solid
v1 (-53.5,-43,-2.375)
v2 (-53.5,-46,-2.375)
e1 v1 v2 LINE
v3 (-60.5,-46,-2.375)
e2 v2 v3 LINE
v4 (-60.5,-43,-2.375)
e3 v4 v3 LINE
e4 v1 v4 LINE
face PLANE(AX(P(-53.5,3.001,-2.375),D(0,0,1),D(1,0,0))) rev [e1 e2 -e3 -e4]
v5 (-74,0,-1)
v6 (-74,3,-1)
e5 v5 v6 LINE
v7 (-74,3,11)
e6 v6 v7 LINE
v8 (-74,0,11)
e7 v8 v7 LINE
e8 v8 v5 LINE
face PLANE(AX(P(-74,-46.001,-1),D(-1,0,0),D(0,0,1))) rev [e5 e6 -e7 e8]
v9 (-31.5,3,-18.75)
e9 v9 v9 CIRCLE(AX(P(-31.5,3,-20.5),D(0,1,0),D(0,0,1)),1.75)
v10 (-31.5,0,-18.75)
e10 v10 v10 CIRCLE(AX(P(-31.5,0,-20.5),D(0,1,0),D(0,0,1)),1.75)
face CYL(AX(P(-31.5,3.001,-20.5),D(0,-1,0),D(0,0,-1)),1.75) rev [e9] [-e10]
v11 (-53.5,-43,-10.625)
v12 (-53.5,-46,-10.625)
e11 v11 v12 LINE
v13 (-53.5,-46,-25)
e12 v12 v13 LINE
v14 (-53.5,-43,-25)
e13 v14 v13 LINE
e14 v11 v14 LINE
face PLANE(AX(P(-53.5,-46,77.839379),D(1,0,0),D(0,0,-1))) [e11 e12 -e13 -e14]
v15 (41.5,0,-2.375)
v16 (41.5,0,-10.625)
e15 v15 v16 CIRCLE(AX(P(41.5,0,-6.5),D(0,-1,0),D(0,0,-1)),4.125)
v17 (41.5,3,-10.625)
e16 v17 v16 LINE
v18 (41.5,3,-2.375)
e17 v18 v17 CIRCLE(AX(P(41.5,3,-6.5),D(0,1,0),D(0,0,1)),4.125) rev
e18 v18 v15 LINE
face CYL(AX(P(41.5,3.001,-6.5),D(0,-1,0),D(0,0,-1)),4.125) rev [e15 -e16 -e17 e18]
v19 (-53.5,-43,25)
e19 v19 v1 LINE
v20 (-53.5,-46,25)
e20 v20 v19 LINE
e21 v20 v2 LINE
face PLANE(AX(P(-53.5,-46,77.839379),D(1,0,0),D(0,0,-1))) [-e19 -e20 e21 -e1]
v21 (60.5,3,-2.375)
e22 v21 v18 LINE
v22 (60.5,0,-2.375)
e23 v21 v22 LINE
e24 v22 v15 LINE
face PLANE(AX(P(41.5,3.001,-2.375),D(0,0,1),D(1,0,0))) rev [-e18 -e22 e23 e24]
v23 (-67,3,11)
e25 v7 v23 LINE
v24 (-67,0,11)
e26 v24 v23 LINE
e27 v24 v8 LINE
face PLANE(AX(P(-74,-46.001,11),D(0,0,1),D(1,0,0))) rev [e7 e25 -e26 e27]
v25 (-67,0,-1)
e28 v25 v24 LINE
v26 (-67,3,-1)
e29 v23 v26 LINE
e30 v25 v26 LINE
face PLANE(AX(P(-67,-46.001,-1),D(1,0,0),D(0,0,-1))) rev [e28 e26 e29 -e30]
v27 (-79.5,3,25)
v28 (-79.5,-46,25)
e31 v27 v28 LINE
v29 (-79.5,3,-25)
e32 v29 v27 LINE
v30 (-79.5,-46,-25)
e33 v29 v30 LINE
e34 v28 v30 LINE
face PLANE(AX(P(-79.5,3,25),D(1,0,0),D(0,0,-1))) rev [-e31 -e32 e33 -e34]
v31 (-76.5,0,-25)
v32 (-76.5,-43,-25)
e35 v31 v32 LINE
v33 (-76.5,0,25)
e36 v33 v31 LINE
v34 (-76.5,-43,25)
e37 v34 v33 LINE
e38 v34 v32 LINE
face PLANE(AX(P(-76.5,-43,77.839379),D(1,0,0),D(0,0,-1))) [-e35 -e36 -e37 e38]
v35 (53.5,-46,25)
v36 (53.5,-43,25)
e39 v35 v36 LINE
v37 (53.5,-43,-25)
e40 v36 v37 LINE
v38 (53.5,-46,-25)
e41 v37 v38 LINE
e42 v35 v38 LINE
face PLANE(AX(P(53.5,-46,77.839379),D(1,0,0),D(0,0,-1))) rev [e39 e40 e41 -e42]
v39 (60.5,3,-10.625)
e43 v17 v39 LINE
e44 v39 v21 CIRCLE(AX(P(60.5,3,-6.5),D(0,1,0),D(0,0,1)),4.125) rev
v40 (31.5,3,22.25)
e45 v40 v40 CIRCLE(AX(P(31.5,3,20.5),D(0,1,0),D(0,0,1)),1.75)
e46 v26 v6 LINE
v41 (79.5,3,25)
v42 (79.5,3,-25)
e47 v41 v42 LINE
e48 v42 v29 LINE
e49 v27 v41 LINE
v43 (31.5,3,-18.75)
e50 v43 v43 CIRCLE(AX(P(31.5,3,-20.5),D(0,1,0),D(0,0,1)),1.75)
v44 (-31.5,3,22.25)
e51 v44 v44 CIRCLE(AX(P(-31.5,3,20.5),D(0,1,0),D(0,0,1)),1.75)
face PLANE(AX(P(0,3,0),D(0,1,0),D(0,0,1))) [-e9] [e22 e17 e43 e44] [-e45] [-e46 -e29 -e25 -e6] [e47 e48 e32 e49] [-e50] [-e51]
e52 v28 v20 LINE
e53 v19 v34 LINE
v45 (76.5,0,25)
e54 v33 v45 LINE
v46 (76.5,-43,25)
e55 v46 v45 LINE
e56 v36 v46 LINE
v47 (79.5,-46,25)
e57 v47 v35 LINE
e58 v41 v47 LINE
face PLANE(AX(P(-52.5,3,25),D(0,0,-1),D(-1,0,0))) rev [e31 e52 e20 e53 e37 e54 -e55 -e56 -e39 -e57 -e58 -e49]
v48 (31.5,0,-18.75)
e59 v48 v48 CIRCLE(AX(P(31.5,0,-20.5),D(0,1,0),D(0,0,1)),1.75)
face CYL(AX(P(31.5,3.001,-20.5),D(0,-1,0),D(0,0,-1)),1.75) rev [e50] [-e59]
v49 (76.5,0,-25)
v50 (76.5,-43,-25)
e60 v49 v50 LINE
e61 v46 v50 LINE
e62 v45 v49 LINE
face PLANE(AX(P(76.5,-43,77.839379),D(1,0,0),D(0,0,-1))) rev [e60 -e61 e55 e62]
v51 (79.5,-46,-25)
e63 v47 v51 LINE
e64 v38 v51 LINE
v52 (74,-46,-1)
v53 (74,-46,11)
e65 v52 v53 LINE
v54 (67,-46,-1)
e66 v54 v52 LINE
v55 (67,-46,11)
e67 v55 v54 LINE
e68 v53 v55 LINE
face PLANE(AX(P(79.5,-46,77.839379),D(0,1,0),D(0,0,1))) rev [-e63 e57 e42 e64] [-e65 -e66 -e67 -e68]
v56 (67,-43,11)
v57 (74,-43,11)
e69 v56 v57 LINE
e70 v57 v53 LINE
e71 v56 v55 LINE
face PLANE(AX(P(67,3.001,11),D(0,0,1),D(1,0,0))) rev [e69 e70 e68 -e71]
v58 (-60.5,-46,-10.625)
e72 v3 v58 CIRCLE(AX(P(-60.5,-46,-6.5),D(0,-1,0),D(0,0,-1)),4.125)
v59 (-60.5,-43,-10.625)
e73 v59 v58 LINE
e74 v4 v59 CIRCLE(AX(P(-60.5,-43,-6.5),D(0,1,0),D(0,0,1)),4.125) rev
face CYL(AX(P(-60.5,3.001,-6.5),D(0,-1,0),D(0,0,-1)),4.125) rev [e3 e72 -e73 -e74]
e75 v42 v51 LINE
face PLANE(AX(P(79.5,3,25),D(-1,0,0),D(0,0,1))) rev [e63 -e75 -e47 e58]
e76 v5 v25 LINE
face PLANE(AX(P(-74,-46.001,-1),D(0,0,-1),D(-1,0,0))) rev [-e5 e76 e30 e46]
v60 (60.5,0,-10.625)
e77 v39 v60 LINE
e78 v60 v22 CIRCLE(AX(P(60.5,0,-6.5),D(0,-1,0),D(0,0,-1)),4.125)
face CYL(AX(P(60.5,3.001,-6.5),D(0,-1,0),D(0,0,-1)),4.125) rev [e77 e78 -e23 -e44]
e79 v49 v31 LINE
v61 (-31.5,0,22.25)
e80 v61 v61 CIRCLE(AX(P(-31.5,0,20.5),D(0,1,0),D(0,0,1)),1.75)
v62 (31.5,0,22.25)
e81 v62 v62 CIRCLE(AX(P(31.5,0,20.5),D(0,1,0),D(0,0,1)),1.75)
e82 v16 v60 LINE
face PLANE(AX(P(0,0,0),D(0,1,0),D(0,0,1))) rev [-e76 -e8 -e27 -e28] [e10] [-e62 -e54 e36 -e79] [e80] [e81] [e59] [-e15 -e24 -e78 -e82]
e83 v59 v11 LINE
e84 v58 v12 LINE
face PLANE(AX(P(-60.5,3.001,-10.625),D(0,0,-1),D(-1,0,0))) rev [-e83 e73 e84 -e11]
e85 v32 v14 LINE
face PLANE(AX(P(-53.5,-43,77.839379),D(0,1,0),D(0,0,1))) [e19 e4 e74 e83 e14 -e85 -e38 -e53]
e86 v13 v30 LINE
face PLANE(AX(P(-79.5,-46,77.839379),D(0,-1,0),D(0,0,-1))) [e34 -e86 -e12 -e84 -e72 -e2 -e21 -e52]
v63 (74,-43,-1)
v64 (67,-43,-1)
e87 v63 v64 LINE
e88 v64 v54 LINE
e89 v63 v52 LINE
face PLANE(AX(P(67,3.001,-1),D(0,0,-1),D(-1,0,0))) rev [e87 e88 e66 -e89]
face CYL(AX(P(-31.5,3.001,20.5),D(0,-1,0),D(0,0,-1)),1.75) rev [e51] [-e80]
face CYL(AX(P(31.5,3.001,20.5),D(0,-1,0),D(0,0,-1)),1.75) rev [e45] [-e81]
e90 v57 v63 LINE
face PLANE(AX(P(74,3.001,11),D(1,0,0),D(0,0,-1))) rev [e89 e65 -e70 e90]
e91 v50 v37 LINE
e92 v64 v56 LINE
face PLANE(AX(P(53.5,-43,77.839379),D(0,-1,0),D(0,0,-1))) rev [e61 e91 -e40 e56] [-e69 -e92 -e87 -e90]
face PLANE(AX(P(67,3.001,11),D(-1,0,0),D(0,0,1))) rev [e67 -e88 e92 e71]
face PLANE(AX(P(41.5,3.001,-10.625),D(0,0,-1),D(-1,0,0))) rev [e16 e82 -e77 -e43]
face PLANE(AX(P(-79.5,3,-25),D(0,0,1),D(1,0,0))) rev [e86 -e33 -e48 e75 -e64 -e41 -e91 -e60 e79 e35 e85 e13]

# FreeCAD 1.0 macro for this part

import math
import FreeCAD as App
import Part
import Sketcher
Q = App.Units.Quantity


def add_polygon(sketch, points):
    """Adds a closed chain of lines whose ends are joined by coincident constraints."""
    first, n = sketch.GeometryCount, len(points)
    for a, b in zip(points, points[1:] + points[:1]):
        sketch.addGeometry(Part.LineSegment(App.Vector(*a, 0), App.Vector(*b, 0)), False)
    for i in range(n):
        sketch.addConstraint(Sketcher.Constraint("Coincident", first + i, 2, first + (i + 1) % n, 1))

doc = App.newDocument("Part")
body = doc.addObject("PartDesign::Body", "Body")

# Sketch on XZ plane
sketch1 = body.newObject("Sketcher::SketchObject", "Sketch")
sketch1.AttachmentSupport = (doc.getObject("XZ_Plane"), [""])
sketch1.MapMode = "FlatFace"
add_polygon(sketch1, [(80, -25), (-80, -25), (-80, 25), (80, 25)])  # lines 0-3
sketch1.addConstraint(Sketcher.Constraint("Horizontal", 0))
sketch1.addConstraint(Sketcher.Constraint("Vertical", 1))
sketch1.addConstraint(Sketcher.Constraint("Horizontal", 2))
sketch1.addConstraint(Sketcher.Constraint("Vertical", 3))
sketch1.addConstraint(Sketcher.Constraint("Symmetric", 0, 2, 2, 2, -1, 1))
sketch1.addConstraint(Sketcher.Constraint("DistanceX", 0, 2, 0, 1, Q("159 mm")))
sketch1.addConstraint(Sketcher.Constraint("DistanceY", 1, 1, 1, 2, Q("50 mm")))
pad1 = body.newObject("PartDesign::Pad", "Pad")
pad1.Profile = sketch1
pad1.Length = 3
pad1.Reversed = True

# Sketch on XY plane
sketch2 = body.newObject("Sketcher::SketchObject", "Sketch001")
sketch2.AttachmentSupport = (doc.getObject("XY_Plane"), [""])
sketch2.MapMode = "FlatFace"
sketch2.AttachmentOffset = App.Placement(App.Vector(0, 0, -25), App.Rotation())
add_polygon(sketch2, [(-79.5, -46), (-79.5, 0), (-76.5, 0), (-76.5, -43), (-53.5, -43), (-53.5, -46)])  # lines 0-5
sketch2.addConstraint(Sketcher.Constraint("Vertical", 0))
sketch2.addConstraint(Sketcher.Constraint("Horizontal", 1))
sketch2.addConstraint(Sketcher.Constraint("Vertical", 2))
sketch2.addConstraint(Sketcher.Constraint("Horizontal", 3))
sketch2.addConstraint(Sketcher.Constraint("Vertical", 4))
sketch2.addConstraint(Sketcher.Constraint("Horizontal", 5))
sketch2.addConstraint(Sketcher.Constraint("PointOnObject", 0, 2, -1))
sketch2.addConstraint(Sketcher.Constraint("Equal", 1, 4))
sketch2.addConstraint(Sketcher.Constraint("DistanceX", 1, 1, 1, 2, Q("3 mm")))
sketch2.addConstraint(Sketcher.Constraint("DistanceX", 3, 1, 3, 2, Q("23 mm")))
sketch2.addConstraint(Sketcher.Constraint("DistanceY", 0, 1, 0, 2, Q("46 mm")))
sketch2.addConstraint(Sketcher.Constraint("DistanceX", 0, 2, -1, 1, Q("79.5 mm")))
pad2 = body.newObject("PartDesign::Pad", "Pad001")
pad2.Profile = sketch2
pad2.Length = 50
doc.recompute()

mirrored = body.newObject("PartDesign::Mirrored", "Mirrored")
mirrored.Originals = [pad2]
mirrored.MirrorPlane = (doc.getObject("YZ_Plane"), [""])
body.Tip = mirrored

# Sketch on XZ plane
sketch3 = body.newObject("Sketcher::SketchObject", "Sketch002")
sketch3.AttachmentSupport = (doc.getObject("XZ_Plane"), [""])
sketch3.MapMode = "FlatFace"
sketch3.AttachmentOffset = App.Placement(App.Vector(0, 0, 46), App.Rotation())
sketch3.addGeometry(Part.LineSegment(App.Vector(-53.5, -2.4, 0), App.Vector(-60.5, -2.4, 0)), False)
sketch3.addGeometry(Part.ArcOfCircle(Part.Circle(App.Vector(-60.5, -6.5, 0), App.Vector(0, 0, 1), 4.1), math.radians(90), math.radians(270)), False)
sketch3.addGeometry(Part.LineSegment(App.Vector(-60.5, -10.6, 0), App.Vector(-53.5, -10.6, 0)), False)
sketch3.addGeometry(Part.LineSegment(App.Vector(-53.5, -10.6, 0), App.Vector(-53.5, -2.4, 0)), False)
sketch3.addConstraint(Sketcher.Constraint("Tangent", 0, 2, 1, 1))
sketch3.addConstraint(Sketcher.Constraint("Tangent", 1, 2, 2, 1))
sketch3.addConstraint(Sketcher.Constraint("Coincident", 2, 2, 3, 1))
sketch3.addConstraint(Sketcher.Constraint("Coincident", 3, 2, 0, 1))
sketch3.addConstraint(Sketcher.Constraint("Horizontal", 0))
sketch3.addConstraint(Sketcher.Constraint("Horizontal", 2))
sketch3.addConstraint(Sketcher.Constraint("Vertical", 3))
sketch3.addConstraint(Sketcher.Constraint("DistanceX", 0, 2, 0, 1, Q("7 mm")))
sketch3.addConstraint(Sketcher.Constraint("Radius", 1, Q("4.125 mm")))
sketch3.addConstraint(Sketcher.Constraint("DistanceX", 1, 3, -1, 1, Q("60.5 mm")))
sketch3.addConstraint(Sketcher.Constraint("DistanceY", 1, 3, -1, 1, Q("6.5 mm")))
pocket1 = body.newObject("PartDesign::Pocket", "Pocket")
pocket1.Profile = sketch3
pocket1.Type = "UpToFirst"

# Sketch on XZ plane
sketch4 = body.newObject("Sketcher::SketchObject", "Sketch003")
sketch4.AttachmentSupport = (doc.getObject("XZ_Plane"), [""])
sketch4.MapMode = "FlatFace"
sketch4.addGeometry(Part.LineSegment(App.Vector(60.5, -2.4, 0), App.Vector(41.5, -2.4, 0)), False)
sketch4.addGeometry(Part.ArcOfCircle(Part.Circle(App.Vector(41.5, -6.5, 0), App.Vector(0, 0, 1), 4.1), math.radians(90), math.radians(270)), False)
sketch4.addGeometry(Part.LineSegment(App.Vector(41.5, -10.6, 0), App.Vector(60.5, -10.6, 0)), False)
sketch4.addGeometry(Part.ArcOfCircle(Part.Circle(App.Vector(60.5, -6.5, 0), App.Vector(0, 0, 1), 4.1), math.radians(-90), math.radians(90)), False)
sketch4.addConstraint(Sketcher.Constraint("Tangent", 0, 2, 1, 1))
sketch4.addConstraint(Sketcher.Constraint("Tangent", 1, 2, 2, 1))
sketch4.addConstraint(Sketcher.Constraint("Tangent", 2, 2, 3, 1))
sketch4.addConstraint(Sketcher.Constraint("Tangent", 3, 2, 0, 1))
sketch4.addConstraint(Sketcher.Constraint("Horizontal", 0))
sketch4.addConstraint(Sketcher.Constraint("Horizontal", 2))
sketch4.addConstraint(Sketcher.Constraint("DistanceX", 0, 2, 0, 1, Q("19 mm")))
sketch4.addConstraint(Sketcher.Constraint("Radius", 1, Q("4.125 mm")))
sketch4.addConstraint(Sketcher.Constraint("DistanceX", -1, 1, 1, 3, Q("41.5 mm")))
sketch4.addConstraint(Sketcher.Constraint("DistanceY", 1, 3, -1, 1, Q("6.5 mm")))
pocket2 = body.newObject("PartDesign::Pocket", "Pocket001")
pocket2.Profile = sketch4
pocket2.Type = "UpToFirst"

# Sketch on XZ plane
sketch5 = body.newObject("Sketcher::SketchObject", "Sketch004")
sketch5.AttachmentSupport = (doc.getObject("XZ_Plane"), [""])
sketch5.MapMode = "FlatFace"
sketch5.AttachmentOffset = App.Placement(App.Vector(0, 0, 46), App.Rotation())
add_polygon(sketch5, [(67, 11), (67, -1), (74, -1), (74, 11)])  # lines 0-3
sketch5.addConstraint(Sketcher.Constraint("Vertical", 0))
sketch5.addConstraint(Sketcher.Constraint("Horizontal", 1))
sketch5.addConstraint(Sketcher.Constraint("Vertical", 2))
sketch5.addConstraint(Sketcher.Constraint("Horizontal", 3))
sketch5.addConstraint(Sketcher.Constraint("DistanceX", 1, 1, 1, 2, Q("7 mm")))
sketch5.addConstraint(Sketcher.Constraint("DistanceY", 0, 2, 0, 1, Q("12 mm")))
sketch5.addConstraint(Sketcher.Constraint("DistanceX", -1, 1, 0, 2, Q("67 mm")))
sketch5.addConstraint(Sketcher.Constraint("DistanceY", 0, 2, -1, 1, Q("1 mm")))
pocket3 = body.newObject("PartDesign::Pocket", "Pocket002")
pocket3.Profile = sketch5
pocket3.Type = "UpToFirst"

# Sketch on XZ plane
sketch6 = body.newObject("Sketcher::SketchObject", "Sketch005")
sketch6.AttachmentSupport = (doc.getObject("XZ_Plane"), [""])
sketch6.MapMode = "FlatFace"
sketch6.AttachmentOffset = App.Placement(App.Vector(0, 0, -3), App.Rotation())
add_polygon(sketch6, [(-74, -1), (-74, 11), (-67, 11), (-67, -1)])  # lines 0-3
sketch6.addConstraint(Sketcher.Constraint("Vertical", 0))
sketch6.addConstraint(Sketcher.Constraint("Horizontal", 1))
sketch6.addConstraint(Sketcher.Constraint("Vertical", 2))
sketch6.addConstraint(Sketcher.Constraint("Horizontal", 3))
sketch6.addConstraint(Sketcher.Constraint("DistanceX", 1, 1, 1, 2, Q("7 mm")))
sketch6.addConstraint(Sketcher.Constraint("DistanceY", 0, 1, 0, 2, Q("12 mm")))
sketch6.addConstraint(Sketcher.Constraint("DistanceX", 0, 2, -1, 1, Q("74 mm")))
sketch6.addConstraint(Sketcher.Constraint("DistanceY", -1, 1, 0, 2, Q("11 mm")))
pocket4 = body.newObject("PartDesign::Pocket", "Pocket003")
pocket4.Profile = sketch6
pocket4.Type = "UpToFirst"
pocket4.Reversed = True

# Sketch on XZ plane
sketch7 = body.newObject("Sketcher::SketchObject", "Sketch006")
sketch7.AttachmentSupport = (doc.getObject("XZ_Plane"), [""])
sketch7.MapMode = "FlatFace"
sketch7.addGeometry(Part.Circle(App.Vector(-31.5, -20.5, 0), App.Vector(0, 0, 1), 1.8), False)
sketch7.addConstraint(Sketcher.Constraint("Diameter", 0, Q("3.5 mm")))
sketch7.addConstraint(Sketcher.Constraint("DistanceX", 0, 3, -1, 1, Q("31.5 mm")))
sketch7.addConstraint(Sketcher.Constraint("DistanceY", 0, 3, -1, 1, Q("20.5 mm")))
pocket5 = body.newObject("PartDesign::Pocket", "Pocket004")
pocket5.Profile = sketch7
pocket5.Type = "UpToFirst"

# Sketch on XZ plane
sketch8 = body.newObject("Sketcher::SketchObject", "Sketch007")
sketch8.AttachmentSupport = (doc.getObject("XZ_Plane"), [""])
sketch8.MapMode = "FlatFace"
sketch8.addGeometry(Part.Circle(App.Vector(-31.5, 20.5, 0), App.Vector(0, 0, 1), 1.8), False)
sketch8.addConstraint(Sketcher.Constraint("Diameter", 0, Q("3.5 mm")))
sketch8.addConstraint(Sketcher.Constraint("DistanceX", 0, 3, -1, 1, Q("31.5 mm")))
sketch8.addConstraint(Sketcher.Constraint("DistanceY", -1, 1, 0, 3, Q("20.5 mm")))
pocket6 = body.newObject("PartDesign::Pocket", "Pocket005")
pocket6.Profile = sketch8
pocket6.Type = "UpToFirst"

# Sketch on XZ plane
sketch9 = body.newObject("Sketcher::SketchObject", "Sketch008")
sketch9.AttachmentSupport = (doc.getObject("XZ_Plane"), [""])
sketch9.MapMode = "FlatFace"
sketch9.addGeometry(Part.Circle(App.Vector(31.5, 20.5, 0), App.Vector(0, 0, 1), 1.8), False)
sketch9.addConstraint(Sketcher.Constraint("Diameter", 0, Q("3.5 mm")))
sketch9.addConstraint(Sketcher.Constraint("DistanceX", -1, 1, 0, 3, Q("31.5 mm")))
sketch9.addConstraint(Sketcher.Constraint("DistanceY", -1, 1, 0, 3, Q("20.5 mm")))
pocket7 = body.newObject("PartDesign::Pocket", "Pocket006")
pocket7.Profile = sketch9
pocket7.Type = "UpToFirst"

# Sketch on XZ plane
sketch10 = body.newObject("Sketcher::SketchObject", "Sketch009")
sketch10.AttachmentSupport = (doc.getObject("XZ_Plane"), [""])
sketch10.MapMode = "FlatFace"
sketch10.addGeometry(Part.Circle(App.Vector(31.5, -20.5, 0), App.Vector(0, 0, 1), 1.8), False)
sketch10.addConstraint(Sketcher.Constraint("Diameter", 0, Q("3.5 mm")))
sketch10.addConstraint(Sketcher.Constraint("DistanceX", -1, 1, 0, 3, Q("31.5 mm")))
sketch10.addConstraint(Sketcher.Constraint("DistanceY", 0, 3, -1, 1, Q("20.5 mm")))
pocket8 = body.newObject("PartDesign::Pocket", "Pocket007")
pocket8.Profile = sketch10
pocket8.Type = "UpToFirst"

doc.recompute()
